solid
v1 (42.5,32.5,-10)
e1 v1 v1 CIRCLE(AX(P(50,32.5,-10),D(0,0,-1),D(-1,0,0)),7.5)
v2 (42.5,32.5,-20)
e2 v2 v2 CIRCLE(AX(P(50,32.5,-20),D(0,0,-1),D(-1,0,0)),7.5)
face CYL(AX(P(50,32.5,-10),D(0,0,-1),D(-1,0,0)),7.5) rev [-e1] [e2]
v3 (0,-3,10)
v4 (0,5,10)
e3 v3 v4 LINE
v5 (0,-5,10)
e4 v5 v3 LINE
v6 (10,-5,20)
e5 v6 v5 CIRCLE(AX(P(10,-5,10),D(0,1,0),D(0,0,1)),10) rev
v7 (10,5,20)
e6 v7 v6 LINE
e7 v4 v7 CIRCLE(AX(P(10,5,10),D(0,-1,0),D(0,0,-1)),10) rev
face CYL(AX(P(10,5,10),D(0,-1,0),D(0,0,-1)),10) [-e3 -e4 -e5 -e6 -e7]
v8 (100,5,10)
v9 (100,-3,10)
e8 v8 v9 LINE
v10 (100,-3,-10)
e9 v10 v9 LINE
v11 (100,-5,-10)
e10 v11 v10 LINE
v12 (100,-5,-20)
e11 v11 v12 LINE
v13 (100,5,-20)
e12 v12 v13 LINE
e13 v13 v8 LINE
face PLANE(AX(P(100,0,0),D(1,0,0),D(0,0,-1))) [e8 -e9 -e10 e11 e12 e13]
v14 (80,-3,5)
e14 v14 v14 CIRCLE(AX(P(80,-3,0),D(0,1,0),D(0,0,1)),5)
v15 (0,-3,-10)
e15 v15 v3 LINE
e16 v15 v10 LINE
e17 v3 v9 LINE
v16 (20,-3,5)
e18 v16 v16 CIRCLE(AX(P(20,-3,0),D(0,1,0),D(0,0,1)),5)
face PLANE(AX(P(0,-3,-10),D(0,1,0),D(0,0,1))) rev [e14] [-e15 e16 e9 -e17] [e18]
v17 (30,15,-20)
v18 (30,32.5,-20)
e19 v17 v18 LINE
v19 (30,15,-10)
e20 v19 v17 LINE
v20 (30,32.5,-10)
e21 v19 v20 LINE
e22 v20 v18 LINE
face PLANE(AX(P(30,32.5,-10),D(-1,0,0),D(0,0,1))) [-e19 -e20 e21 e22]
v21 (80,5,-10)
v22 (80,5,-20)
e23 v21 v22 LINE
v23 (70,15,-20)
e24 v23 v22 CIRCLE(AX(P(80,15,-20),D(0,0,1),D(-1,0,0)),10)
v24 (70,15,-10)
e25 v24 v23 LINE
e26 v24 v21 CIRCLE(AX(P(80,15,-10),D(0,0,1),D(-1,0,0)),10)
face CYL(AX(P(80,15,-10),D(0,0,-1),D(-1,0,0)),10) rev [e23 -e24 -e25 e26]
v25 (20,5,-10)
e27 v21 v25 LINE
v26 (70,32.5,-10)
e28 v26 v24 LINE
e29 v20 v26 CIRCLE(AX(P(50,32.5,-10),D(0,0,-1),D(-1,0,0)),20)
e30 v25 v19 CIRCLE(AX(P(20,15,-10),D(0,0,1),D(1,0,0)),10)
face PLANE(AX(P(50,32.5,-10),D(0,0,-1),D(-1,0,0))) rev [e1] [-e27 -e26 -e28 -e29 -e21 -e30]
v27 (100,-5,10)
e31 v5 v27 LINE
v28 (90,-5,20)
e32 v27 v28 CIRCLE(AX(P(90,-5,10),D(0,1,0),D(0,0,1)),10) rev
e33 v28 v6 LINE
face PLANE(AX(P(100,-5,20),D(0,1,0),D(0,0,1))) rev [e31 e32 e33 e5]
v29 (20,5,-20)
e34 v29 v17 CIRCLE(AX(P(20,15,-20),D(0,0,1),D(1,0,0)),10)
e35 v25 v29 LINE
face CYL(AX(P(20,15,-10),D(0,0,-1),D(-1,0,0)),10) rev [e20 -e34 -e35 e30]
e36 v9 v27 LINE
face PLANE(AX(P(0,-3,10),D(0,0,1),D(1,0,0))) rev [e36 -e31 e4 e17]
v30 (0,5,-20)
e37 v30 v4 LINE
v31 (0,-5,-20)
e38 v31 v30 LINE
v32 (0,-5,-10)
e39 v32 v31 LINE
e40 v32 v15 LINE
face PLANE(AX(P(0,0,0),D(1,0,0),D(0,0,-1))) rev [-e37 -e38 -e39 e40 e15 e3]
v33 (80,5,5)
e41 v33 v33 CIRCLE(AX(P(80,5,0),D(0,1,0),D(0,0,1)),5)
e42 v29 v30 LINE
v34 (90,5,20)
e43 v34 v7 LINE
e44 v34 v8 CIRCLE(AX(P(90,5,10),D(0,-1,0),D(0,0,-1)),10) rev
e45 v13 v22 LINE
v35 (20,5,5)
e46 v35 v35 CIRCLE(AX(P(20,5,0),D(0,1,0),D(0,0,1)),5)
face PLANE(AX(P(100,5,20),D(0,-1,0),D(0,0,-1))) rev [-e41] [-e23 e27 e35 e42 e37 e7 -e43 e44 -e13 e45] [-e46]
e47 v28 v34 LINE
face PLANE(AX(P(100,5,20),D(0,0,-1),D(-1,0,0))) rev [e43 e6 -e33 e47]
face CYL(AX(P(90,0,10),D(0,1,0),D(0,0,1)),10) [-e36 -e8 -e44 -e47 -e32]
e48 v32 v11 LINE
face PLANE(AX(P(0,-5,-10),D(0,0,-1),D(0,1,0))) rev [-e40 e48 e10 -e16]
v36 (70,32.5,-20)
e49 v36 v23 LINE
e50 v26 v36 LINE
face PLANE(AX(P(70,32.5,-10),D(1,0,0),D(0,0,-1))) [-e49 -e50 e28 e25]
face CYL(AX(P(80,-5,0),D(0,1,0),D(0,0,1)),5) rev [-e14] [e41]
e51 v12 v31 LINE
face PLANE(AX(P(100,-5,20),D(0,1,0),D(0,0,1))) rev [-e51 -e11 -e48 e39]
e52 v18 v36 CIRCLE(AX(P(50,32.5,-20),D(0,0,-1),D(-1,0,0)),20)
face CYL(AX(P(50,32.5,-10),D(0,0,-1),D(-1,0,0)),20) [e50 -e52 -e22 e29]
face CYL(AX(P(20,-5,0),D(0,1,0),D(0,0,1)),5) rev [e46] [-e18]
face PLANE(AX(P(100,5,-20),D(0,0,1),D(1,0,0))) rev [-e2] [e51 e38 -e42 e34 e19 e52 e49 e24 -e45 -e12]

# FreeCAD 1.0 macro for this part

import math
import FreeCAD as App
import Part
import Sketcher

V = App.Vector


def edges_at(feature, points):
    """Names of the edges that pass closest to the given points."""
    edges = feature.Shape.Edges
    near = lambda p: min(range(len(edges)), key=lambda i: edges[i].distToShape(Part.Vertex(*p))[0])
    return sorted({f"Edge{near(p) + 1}" for p in points})


def add_polygon(sketch, points):
    """Adds a closed chain of lines whose ends are joined by coincident constraints."""
    first, n = sketch.GeometryCount, len(points)
    for a, b in zip(points, points[1:] + points[:1]):
        sketch.addGeometry(Part.LineSegment(App.Vector(*a, 0), App.Vector(*b, 0)), False)
    for i in range(n):
        sketch.addConstraint(Sketcher.Constraint("Coincident", first + i, 2, first + (i + 1) % n, 1))

doc = App.newDocument("Part")
body = doc.addObject("PartDesign::Body", "Body")

sketch1 = body.newObject("Sketcher::SketchObject", "Sketch")
sketch1.AttachmentSupport = (doc.getObject("YZ_Plane"), [""])
sketch1.MapMode = "FlatFace"
add_polygon(sketch1, [(5, 20), (-5, 20), (-5, -20), (5, -20)])
sketch1.addConstraint([
    Sketcher.Constraint("Horizontal", 0),
    Sketcher.Constraint("Vertical", 1),
    Sketcher.Constraint("Horizontal", 2),
    Sketcher.Constraint("Vertical", 3),
    Sketcher.Constraint("Symmetric", 0, 2, 2, 2, -1, 1),
    Sketcher.Constraint("DistanceX", 0, 2, 0, 1, 10.0),
    Sketcher.Constraint("DistanceY", 1, 2, 1, 1, 40.0),
])
pad1 = body.newObject("PartDesign::Pad", "Pad")
pad1.Profile = sketch1
pad1.Length = 100
doc.recompute()

fillet = body.newObject("PartDesign::Fillet", "Fillet")
fillet.Base = (pad1, edges_at(pad1, [(100, 0, 20), (0, 0, 20)]))
fillet.Radius = 10

sketch2 = body.newObject("Sketcher::SketchObject", "Sketch001")
sketch2.AttachmentSupport = (doc.getObject("YZ_Plane"), [""])
sketch2.MapMode = "FlatFace"
sketch2.AttachmentOffset = App.Placement(V(0, 0, 100), App.Rotation())
add_polygon(sketch2, [(-3, 10), (-5, 10), (-5, -10), (-3, -10)])
sketch2.addConstraint([
    Sketcher.Constraint("Horizontal", 0),
    Sketcher.Constraint("Vertical", 1),
    Sketcher.Constraint("Horizontal", 2),
    Sketcher.Constraint("Vertical", 3),
    Sketcher.Constraint("DistanceX", 0, 2, 0, 1, 2.0),
    Sketcher.Constraint("DistanceY", 1, 2, 1, 1, 20.0),
    Sketcher.Constraint("DistanceX", 0, 2, -1, 1, 5.0),
    Sketcher.Constraint("DistanceY", -1, 1, 0, 2, 10.0),
])
pocket1 = body.newObject("PartDesign::Pocket", "Pocket")
pocket1.Profile = sketch2
pocket1.Length = 100

sketch3 = body.newObject("Sketcher::SketchObject", "Sketch002")
sketch3.AttachmentSupport = (doc.getObject("XZ_Plane"), [""])
sketch3.MapMode = "FlatFace"
sketch3.AttachmentOffset = App.Placement(V(0, 0, -5), App.Rotation())
sketch3.addGeometry([
    Part.Circle(V(20, 0, 0), V(0, 0, 1), 5),
    Part.Circle(V(80, 0, 0), V(0, 0, 1), 5),
], False)
sketch3.addConstraint([
    Sketcher.Constraint("Equal", 0, 1),
    Sketcher.Constraint("PointOnObject", 0, 3, -1),
    Sketcher.Constraint("PointOnObject", 1, 3, -1),
    Sketcher.Constraint("Diameter", 0, 10.0),
    Sketcher.Constraint("DistanceX", -1, 1, 0, 3, 20.0),
    Sketcher.Constraint("DistanceX", -1, 1, 1, 3, 80.0),
])
pocket2 = body.newObject("PartDesign::Pocket", "Pocket001")
pocket2.Profile = sketch3
pocket2.Length = 10
pocket2.Reversed = True

sketch4 = body.newObject("Sketcher::SketchObject", "Sketch003")
sketch4.AttachmentSupport = (doc.getObject("XY_Plane"), [""])
sketch4.MapMode = "FlatFace"
sketch4.AttachmentOffset = App.Placement(V(0, 0, -20), App.Rotation())
sketch4.addGeometry([
    Part.LineSegment(V(70, 32.5, 0), V(70, 15, 0)),
    Part.ArcOfCircle(Part.Circle(V(80, 15, 0), V(0, 0, 1), 10), math.radians(180), math.radians(270)),
    Part.LineSegment(V(80, 5, 0), V(20, 5, 0)),
    Part.ArcOfCircle(Part.Circle(V(20, 15, 0), V(0, 0, 1), 10), math.radians(-90), math.radians(0)),
    Part.LineSegment(V(30, 15, 0), V(30, 32.5, 0)),
    Part.ArcOfCircle(Part.Circle(V(50, 32.5, 0), V(0, 0, 1), 20), math.radians(0), math.radians(180)),
    Part.Circle(V(50, 32.5, 0), V(0, 0, 1), 7.5),
], False)
sketch4.addConstraint([
    Sketcher.Constraint("Tangent", 0, 2, 1, 1),
    Sketcher.Constraint("Tangent", 1, 2, 2, 1),
    Sketcher.Constraint("Tangent", 2, 2, 3, 1),
    Sketcher.Constraint("Tangent", 3, 2, 4, 1),
    Sketcher.Constraint("Tangent", 4, 2, 5, 2),
    Sketcher.Constraint("Tangent", 5, 1, 0, 1),
    Sketcher.Constraint("Vertical", 0),
    Sketcher.Constraint("Horizontal", 2),
    Sketcher.Constraint("Vertical", 4),
    Sketcher.Constraint("Coincident", 6, 3, 5, 3),
    Sketcher.Constraint("Equal", 1, 3),
    Sketcher.Constraint("Diameter", 6, 15.0),
    Sketcher.Constraint("Radius", 1, 10.0),
    Sketcher.Constraint("Radius", 5, 20.0),
    Sketcher.Constraint("DistanceY", 0, 2, 0, 1, 17.5),
    Sketcher.Constraint("DistanceX", -1, 1, 1, 3, 80.0),
    Sketcher.Constraint("DistanceY", -1, 1, 1, 3, 15.0),
])
pad2 = body.newObject("PartDesign::Pad", "Pad001")
pad2.Profile = sketch4
pad2.Length = 10

doc.recompute()
